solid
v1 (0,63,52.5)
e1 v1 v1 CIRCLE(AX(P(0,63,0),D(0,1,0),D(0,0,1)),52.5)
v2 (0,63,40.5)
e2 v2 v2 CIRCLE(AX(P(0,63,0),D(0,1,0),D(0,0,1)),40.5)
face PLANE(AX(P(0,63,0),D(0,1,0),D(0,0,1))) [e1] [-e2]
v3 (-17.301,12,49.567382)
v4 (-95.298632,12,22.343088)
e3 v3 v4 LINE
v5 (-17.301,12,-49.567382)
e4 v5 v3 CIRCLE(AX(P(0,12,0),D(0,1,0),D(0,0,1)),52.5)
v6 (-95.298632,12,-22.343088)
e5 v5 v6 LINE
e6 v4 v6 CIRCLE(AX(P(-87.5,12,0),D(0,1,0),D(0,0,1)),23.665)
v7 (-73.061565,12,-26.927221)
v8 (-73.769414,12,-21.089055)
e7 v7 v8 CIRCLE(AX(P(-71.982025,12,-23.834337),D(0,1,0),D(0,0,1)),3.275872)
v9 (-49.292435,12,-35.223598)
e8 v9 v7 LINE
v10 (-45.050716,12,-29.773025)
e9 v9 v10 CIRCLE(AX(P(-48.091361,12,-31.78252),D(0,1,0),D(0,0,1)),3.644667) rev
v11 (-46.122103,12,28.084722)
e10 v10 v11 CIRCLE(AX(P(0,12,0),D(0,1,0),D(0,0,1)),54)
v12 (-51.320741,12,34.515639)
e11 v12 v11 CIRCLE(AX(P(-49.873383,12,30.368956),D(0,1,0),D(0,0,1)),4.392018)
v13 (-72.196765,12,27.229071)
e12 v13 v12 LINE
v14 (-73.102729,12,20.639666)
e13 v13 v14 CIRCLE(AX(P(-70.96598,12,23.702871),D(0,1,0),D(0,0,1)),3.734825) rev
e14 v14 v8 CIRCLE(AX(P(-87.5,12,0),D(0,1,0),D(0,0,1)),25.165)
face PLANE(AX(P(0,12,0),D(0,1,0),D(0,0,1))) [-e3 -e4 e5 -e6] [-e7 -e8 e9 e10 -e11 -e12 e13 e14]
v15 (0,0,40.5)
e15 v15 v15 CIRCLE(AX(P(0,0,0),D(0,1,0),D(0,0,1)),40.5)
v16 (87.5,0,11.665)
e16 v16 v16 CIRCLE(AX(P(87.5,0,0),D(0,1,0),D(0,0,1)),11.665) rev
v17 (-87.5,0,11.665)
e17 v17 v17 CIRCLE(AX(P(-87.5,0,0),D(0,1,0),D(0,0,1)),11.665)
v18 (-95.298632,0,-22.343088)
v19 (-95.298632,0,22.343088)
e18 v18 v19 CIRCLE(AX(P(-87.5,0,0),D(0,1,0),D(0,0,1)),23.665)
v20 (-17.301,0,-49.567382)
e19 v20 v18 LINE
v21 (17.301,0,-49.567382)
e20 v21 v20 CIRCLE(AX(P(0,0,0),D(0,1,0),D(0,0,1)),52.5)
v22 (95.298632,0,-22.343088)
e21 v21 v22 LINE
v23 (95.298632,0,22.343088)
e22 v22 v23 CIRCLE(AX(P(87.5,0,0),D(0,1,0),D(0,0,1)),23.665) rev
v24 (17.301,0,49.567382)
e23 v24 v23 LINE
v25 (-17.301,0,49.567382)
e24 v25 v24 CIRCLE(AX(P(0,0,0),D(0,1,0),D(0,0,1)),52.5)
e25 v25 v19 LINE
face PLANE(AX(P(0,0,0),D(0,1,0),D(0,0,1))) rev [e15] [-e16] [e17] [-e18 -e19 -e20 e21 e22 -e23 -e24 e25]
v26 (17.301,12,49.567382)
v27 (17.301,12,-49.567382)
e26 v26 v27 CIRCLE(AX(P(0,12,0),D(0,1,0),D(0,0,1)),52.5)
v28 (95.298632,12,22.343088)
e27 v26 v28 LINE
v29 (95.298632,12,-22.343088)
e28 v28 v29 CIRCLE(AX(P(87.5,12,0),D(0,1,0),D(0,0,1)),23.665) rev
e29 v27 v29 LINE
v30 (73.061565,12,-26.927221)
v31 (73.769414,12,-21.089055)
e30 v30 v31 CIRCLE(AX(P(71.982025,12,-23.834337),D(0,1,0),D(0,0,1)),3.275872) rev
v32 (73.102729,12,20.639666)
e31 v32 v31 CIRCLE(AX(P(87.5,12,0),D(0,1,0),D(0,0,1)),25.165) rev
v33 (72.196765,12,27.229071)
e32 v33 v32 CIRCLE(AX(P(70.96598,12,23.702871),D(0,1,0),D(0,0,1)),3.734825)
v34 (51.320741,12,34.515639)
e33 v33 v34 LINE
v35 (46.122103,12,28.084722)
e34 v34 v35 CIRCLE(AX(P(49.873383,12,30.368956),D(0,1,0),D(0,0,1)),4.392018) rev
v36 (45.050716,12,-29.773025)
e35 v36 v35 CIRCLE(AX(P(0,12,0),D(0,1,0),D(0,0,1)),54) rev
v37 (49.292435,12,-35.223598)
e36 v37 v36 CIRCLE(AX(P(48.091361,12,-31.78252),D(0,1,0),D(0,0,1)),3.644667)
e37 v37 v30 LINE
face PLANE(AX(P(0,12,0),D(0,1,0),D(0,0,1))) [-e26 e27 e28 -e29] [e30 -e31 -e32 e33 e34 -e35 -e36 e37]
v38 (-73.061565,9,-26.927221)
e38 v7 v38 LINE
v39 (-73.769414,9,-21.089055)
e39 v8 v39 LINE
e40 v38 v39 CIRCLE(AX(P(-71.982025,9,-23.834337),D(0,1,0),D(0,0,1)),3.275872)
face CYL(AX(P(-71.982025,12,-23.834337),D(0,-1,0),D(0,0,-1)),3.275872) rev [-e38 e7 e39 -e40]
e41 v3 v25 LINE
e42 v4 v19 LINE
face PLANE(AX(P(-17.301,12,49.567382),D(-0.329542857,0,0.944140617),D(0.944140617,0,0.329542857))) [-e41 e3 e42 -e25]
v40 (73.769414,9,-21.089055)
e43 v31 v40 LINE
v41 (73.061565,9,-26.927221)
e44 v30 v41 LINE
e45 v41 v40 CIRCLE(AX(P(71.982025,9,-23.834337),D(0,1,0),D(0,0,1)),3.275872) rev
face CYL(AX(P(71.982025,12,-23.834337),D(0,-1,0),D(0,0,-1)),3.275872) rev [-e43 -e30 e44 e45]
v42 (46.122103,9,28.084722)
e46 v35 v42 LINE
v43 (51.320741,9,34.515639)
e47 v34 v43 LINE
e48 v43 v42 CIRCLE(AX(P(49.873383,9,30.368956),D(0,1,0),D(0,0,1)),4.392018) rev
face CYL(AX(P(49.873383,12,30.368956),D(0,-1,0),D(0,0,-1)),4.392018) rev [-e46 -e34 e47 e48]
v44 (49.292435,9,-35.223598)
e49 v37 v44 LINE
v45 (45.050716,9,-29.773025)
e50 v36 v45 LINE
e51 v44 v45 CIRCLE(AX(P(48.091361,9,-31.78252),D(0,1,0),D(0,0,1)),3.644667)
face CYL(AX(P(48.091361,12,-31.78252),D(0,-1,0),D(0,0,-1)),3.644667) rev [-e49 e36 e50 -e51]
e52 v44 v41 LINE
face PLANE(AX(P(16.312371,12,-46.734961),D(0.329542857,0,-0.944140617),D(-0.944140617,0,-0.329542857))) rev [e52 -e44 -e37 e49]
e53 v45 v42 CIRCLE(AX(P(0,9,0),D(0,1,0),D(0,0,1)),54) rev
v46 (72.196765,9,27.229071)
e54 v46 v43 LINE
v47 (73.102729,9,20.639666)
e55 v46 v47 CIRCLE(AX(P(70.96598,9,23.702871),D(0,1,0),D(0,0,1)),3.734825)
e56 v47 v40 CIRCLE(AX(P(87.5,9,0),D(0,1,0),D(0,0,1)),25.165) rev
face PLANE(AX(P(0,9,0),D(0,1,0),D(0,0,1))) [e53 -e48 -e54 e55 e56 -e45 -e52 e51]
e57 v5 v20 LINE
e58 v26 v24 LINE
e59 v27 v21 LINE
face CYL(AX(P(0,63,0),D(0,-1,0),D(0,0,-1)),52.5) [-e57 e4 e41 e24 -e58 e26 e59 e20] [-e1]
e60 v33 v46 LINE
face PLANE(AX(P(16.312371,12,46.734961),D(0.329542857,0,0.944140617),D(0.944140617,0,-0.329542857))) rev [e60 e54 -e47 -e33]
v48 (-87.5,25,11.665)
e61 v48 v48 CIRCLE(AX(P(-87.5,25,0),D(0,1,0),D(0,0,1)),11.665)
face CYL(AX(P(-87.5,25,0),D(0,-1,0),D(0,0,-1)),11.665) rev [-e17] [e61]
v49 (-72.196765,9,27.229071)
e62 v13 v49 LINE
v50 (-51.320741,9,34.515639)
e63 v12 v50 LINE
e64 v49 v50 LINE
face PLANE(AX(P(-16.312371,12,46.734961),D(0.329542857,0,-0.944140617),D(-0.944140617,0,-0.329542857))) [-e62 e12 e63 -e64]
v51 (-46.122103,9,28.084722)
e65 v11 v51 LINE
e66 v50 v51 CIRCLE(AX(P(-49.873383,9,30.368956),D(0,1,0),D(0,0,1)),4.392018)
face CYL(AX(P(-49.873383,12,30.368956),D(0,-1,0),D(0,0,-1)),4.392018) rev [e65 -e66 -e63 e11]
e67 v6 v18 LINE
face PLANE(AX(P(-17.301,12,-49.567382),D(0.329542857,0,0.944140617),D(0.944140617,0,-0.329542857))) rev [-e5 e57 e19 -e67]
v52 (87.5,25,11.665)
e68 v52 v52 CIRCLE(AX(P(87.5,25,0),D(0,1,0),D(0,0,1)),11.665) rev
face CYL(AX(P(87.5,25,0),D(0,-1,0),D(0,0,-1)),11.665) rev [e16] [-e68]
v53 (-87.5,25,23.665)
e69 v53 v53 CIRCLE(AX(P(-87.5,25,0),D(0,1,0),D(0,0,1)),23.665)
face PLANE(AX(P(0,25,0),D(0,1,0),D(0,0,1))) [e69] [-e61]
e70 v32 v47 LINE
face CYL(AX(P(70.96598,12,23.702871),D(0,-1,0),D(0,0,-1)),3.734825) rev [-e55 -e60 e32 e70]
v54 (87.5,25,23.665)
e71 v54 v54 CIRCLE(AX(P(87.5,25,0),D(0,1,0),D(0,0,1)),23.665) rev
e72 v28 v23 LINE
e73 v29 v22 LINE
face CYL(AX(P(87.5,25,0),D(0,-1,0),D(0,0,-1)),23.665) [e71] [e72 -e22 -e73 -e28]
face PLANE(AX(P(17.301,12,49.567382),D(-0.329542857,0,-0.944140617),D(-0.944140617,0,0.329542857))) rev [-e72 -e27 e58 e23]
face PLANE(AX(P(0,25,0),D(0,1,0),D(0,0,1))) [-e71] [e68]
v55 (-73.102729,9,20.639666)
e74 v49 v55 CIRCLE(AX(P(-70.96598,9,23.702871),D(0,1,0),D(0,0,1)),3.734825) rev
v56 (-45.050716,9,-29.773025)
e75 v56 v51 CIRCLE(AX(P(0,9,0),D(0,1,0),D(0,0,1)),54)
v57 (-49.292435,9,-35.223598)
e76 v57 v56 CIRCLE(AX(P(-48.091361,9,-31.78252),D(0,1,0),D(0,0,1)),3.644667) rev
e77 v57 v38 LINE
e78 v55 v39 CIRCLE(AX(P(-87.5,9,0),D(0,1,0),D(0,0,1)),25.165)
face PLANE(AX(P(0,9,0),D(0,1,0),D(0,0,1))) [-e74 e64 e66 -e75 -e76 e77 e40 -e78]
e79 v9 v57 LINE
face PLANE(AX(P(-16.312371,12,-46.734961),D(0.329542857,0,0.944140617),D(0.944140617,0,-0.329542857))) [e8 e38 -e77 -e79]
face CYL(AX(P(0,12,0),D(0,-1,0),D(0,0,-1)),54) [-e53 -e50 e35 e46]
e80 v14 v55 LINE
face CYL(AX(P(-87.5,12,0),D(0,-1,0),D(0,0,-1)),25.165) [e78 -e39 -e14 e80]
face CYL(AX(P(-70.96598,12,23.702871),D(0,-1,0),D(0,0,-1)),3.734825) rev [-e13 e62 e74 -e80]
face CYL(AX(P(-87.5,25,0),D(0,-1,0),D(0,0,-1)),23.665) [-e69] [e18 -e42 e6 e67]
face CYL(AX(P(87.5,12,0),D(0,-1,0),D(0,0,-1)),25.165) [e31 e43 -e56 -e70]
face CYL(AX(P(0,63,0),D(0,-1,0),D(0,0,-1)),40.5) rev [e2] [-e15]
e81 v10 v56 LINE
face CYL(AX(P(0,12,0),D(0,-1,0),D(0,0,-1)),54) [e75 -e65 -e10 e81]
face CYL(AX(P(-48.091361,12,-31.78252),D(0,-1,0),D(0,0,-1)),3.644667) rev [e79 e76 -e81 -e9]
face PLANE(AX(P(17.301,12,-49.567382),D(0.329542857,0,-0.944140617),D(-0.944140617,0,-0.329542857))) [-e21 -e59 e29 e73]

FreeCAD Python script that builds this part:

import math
import FreeCAD as App
import Part
import Sketcher
Q = App.Units.Quantity

doc = App.newDocument("Part")
body = doc.addObject("PartDesign::Body", "Body")

sketch1 = body.newObject("Sketcher::SketchObject", "Sketch")
sketch1.AttachmentSupport = (doc.getObject("XZ_Plane"), [""])
sketch1.MapMode = "FlatFace"
sketch1.addGeometry([
    Part.LineSegment(App.Vector(95.3, -22.3, 0), App.Vector(17.3, -49.6, 0)),
    Part.ArcOfCircle(Part.Circle(App.Vector(0, 0, 0), App.Vector(0, 0, 1), 52.5), math.radians(-71), math.radians(0)),
    Part.ArcOfCircle(Part.Circle(App.Vector(0, 0, 0), App.Vector(0, 0, 1), 52.5), math.radians(0), math.radians(71)),
    Part.LineSegment(App.Vector(17.3, 49.6, 0), App.Vector(95.3, 22.3, 0)),
    Part.ArcOfCircle(Part.Circle(App.Vector(87.5, 0, 0), App.Vector(0, 0, 1), 23.7), math.radians(71), math.radians(289)),
    Part.ArcOfCircle(Part.Circle(App.Vector(87.5, 0, 0), App.Vector(0, 0, 1), 25.2), math.radians(125), math.radians(237)),
    Part.ArcOfCircle(Part.Circle(App.Vector(71, 23.7, 0), App.Vector(0, 0, 1), 3.7), math.radians(-55), math.radians(71)),
    Part.LineSegment(App.Vector(72.2, 27.2, 0), App.Vector(51.3, 34.5, 0)),
    Part.ArcOfCircle(Part.Circle(App.Vector(49.9, 30.4, 0), App.Vector(0, 0, 1), 4.4), math.radians(71), math.radians(211)),
    Part.ArcOfCircle(Part.Circle(App.Vector(0, 0, 0), App.Vector(0, 0, 1), 54), math.radians(-33), math.radians(31)),
    Part.ArcOfCircle(Part.Circle(App.Vector(48.1, -31.8, 0), App.Vector(0, 0, 1), 3.6), math.radians(147), math.radians(289)),
    Part.LineSegment(App.Vector(49.3, -35.2, 0), App.Vector(73.1, -26.9, 0)),
    Part.ArcOfCircle(Part.Circle(App.Vector(72, -23.8, 0), App.Vector(0, 0, 1), 3.3), math.radians(-71), math.radians(57)),
], False)
sketch1.addConstraint([
    Sketcher.Constraint("Tangent", 0, 2, 1, 1),
    Sketcher.Constraint("Tangent", 1, 2, 2, 1),
    Sketcher.Constraint("Tangent", 2, 2, 3, 1),
    Sketcher.Constraint("Tangent", 3, 2, 4, 1),
    Sketcher.Constraint("Tangent", 4, 2, 0, 1),
    Sketcher.Constraint("Tangent", 5, 1, 6, 1),
    Sketcher.Constraint("Tangent", 6, 2, 7, 1),
    Sketcher.Constraint("Tangent", 7, 2, 8, 1),
    Sketcher.Constraint("Tangent", 8, 2, 9, 2),
    Sketcher.Constraint("Tangent", 9, 1, 10, 1),
    Sketcher.Constraint("Tangent", 10, 2, 11, 1),
    Sketcher.Constraint("Tangent", 11, 2, 12, 1),
    Sketcher.Constraint("Tangent", 12, 2, 5, 2),
    Sketcher.Constraint("Coincident", 1, 3, -1, 1),
    Sketcher.Constraint("Coincident", 9, 3, -1, 1),
    Sketcher.Constraint("Coincident", 5, 3, 4, 3),
    Sketcher.Constraint("Equal", 1, 2),
    Sketcher.Constraint("PointOnObject", 4, 3, -1),
    Sketcher.Constraint("PointOnObject", 1, 2, -1),
    Sketcher.Constraint("Parallel", 3, 7),
    Sketcher.Constraint("Parallel", 0, 11),
    Sketcher.Constraint("Radius", 9, Q("54 mm")),
    Sketcher.Constraint("Radius", 1, Q("52.5 mm")),
    Sketcher.Constraint("Radius", 4, Q("23.665 mm")),
    Sketcher.Constraint("Radius", 5, Q("25.165 mm")),
    Sketcher.Constraint("DistanceX", 1, 2, 5, 3, Q("35 mm")),
    Sketcher.Constraint("Radius", 8, Q("4.392018 mm")),
    Sketcher.Constraint("Radius", 12, Q("3.275872 mm")),
    Sketcher.Constraint("Radius", 6, Q("3.734825 mm")),
    Sketcher.Constraint("Radius", 10, Q("3.644667 mm")),
    Sketcher.Constraint("DistanceY", 10, 2, -1, 1, Q("35.223598 mm")),
    Sketcher.Constraint("Distance", 7, Q("22.111138 mm")),
])
pad1 = body.newObject("PartDesign::Pad", "Pad")
pad1.Profile = sketch1
pad1.Length = 12
pad1.Reversed = True
body2 = doc.addObject("PartDesign::Body", "Body001")

sketch2 = body2.newObject("Sketcher::SketchObject", "Sketch001")
sketch2.AttachmentSupport = (doc.getObject("XZ_Plane001"), [""])
sketch2.MapMode = "FlatFace"
sketch2.addGeometry([
    Part.ArcOfCircle(Part.Circle(App.Vector(0, 0, 0), App.Vector(0, 0, 1), 52.5), math.radians(109), math.radians(251)),
    Part.LineSegment(App.Vector(-17.3, -49.6, 0), App.Vector(-95.3, -22.3, 0)),
    Part.ArcOfCircle(Part.Circle(App.Vector(-87.5, 0, 0), App.Vector(0, 0, 1), 23.7), math.radians(-109), math.radians(0)),
    Part.ArcOfCircle(Part.Circle(App.Vector(-87.5, 0, 0), App.Vector(0, 0, 1), 23.7), math.radians(0), math.radians(109)),
    Part.LineSegment(App.Vector(-95.3, 22.3, 0), App.Vector(-17.3, 49.6, 0)),
    Part.ArcOfCircle(Part.Circle(App.Vector(-72, -23.8, 0), App.Vector(0, 0, 1), 3.3), math.radians(123), math.radians(251)),
    Part.LineSegment(App.Vector(-73.1, -26.9, 0), App.Vector(-49.3, -35.2, 0)),
    Part.ArcOfCircle(Part.Circle(App.Vector(-48.1, -31.8, 0), App.Vector(0, 0, 1), 3.6), math.radians(-109), math.radians(33)),
    Part.ArcOfCircle(Part.Circle(App.Vector(0, 0, 0), App.Vector(0, 0, 1), 54), math.radians(149), math.radians(213)),
    Part.ArcOfCircle(Part.Circle(App.Vector(-49.9, 30.4, 0), App.Vector(0, 0, 1), 4.4), math.radians(-31), math.radians(109)),
    Part.LineSegment(App.Vector(-51.3, 34.5, 0), App.Vector(-72.2, 27.2, 0)),
    Part.ArcOfCircle(Part.Circle(App.Vector(-71, 23.7, 0), App.Vector(0, 0, 1), 3.7), math.radians(109), math.radians(235)),
    Part.ArcOfCircle(Part.Circle(App.Vector(-87.5, 0, 0), App.Vector(0, 0, 1), 25.2), math.radians(-57), math.radians(55)),
], False)
sketch2.addConstraint([
    Sketcher.Constraint("Tangent", 0, 2, 1, 1),
    Sketcher.Constraint("Tangent", 1, 2, 2, 1),
    Sketcher.Constraint("Tangent", 2, 2, 3, 1),
    Sketcher.Constraint("Tangent", 3, 2, 4, 1),
    Sketcher.Constraint("Tangent", 4, 2, 0, 1),
    Sketcher.Constraint("Tangent", 5, 2, 6, 1),
    Sketcher.Constraint("Tangent", 6, 2, 7, 1),
    Sketcher.Constraint("Tangent", 7, 2, 8, 2),
    Sketcher.Constraint("Tangent", 8, 1, 9, 1),
    Sketcher.Constraint("Tangent", 9, 2, 10, 1),
    Sketcher.Constraint("Tangent", 10, 2, 11, 1),
    Sketcher.Constraint("Tangent", 11, 2, 12, 2),
    Sketcher.Constraint("Tangent", 12, 1, 5, 1),
    Sketcher.Constraint("Coincident", 0, 3, -1, 1),
    Sketcher.Constraint("Coincident", 8, 3, -1, 1),
    Sketcher.Constraint("Coincident", 12, 3, 2, 3),
    Sketcher.Constraint("Equal", 2, 3),
    Sketcher.Constraint("PointOnObject", 2, 3, -1),
    Sketcher.Constraint("PointOnObject", 2, 2, -1),
    Sketcher.Constraint("Parallel", 1, 6),
    Sketcher.Constraint("Parallel", 4, 10),
    Sketcher.Constraint("Radius", 8, Q("54 mm")),
    Sketcher.Constraint("Radius", 0, Q("52.5 mm")),
    Sketcher.Constraint("Radius", 2, Q("23.665 mm")),
    Sketcher.Constraint("Radius", 12, Q("25.165 mm")),
    Sketcher.Constraint("DistanceX", 2, 3, -1, 1, Q("87.5 mm")),
    Sketcher.Constraint("Radius", 5, Q("3.275872 mm")),
    Sketcher.Constraint("Radius", 9, Q("4.392018 mm")),
    Sketcher.Constraint("Radius", 7, Q("3.644667 mm")),
    Sketcher.Constraint("Radius", 11, Q("3.734825 mm")),
    Sketcher.Constraint("DistanceY", 6, 2, -1, 1, Q("35.223598 mm")),
    Sketcher.Constraint("Distance", 10, Q("22.111138 mm")),
])
pad2 = body2.newObject("PartDesign::Pad", "Pad001")
pad2.Profile = sketch2
pad2.Length = 12
pad2.Reversed = True
body.AllowCompound = True
doc.recompute()

boolean = body.newObject("PartDesign::Boolean", "Boolean")
boolean.Type = "Fuse"
boolean.addObjects([body2])

sketch3 = body.newObject("Sketcher::SketchObject", "Sketch002")
sketch3.AttachmentSupport = (doc.getObject("XZ_Plane"), [""])
sketch3.MapMode = "FlatFace"
sketch3.addGeometry([
    Part.ArcOfCircle(Part.Circle(App.Vector(48.1, -31.8, 0), App.Vector(0, 0, 1), 3.6), math.radians(147), math.radians(289)),
    Part.ArcOfCircle(Part.Circle(App.Vector(0, 0, 0), App.Vector(0, 0, 1), 54), math.radians(-33), math.radians(31)),
    Part.ArcOfCircle(Part.Circle(App.Vector(49.9, 30.4, 0), App.Vector(0, 0, 1), 4.4), math.radians(71), math.radians(211)),
    Part.LineSegment(App.Vector(51.3, 34.5, 0), App.Vector(72.2, 27.2, 0)),
    Part.ArcOfCircle(Part.Circle(App.Vector(71, 23.7, 0), App.Vector(0, 0, 1), 3.7), math.radians(-55), math.radians(71)),
    Part.ArcOfCircle(Part.Circle(App.Vector(87.5, 0, 0), App.Vector(0, 0, 1), 25.2), math.radians(125), math.radians(237)),
    Part.ArcOfCircle(Part.Circle(App.Vector(72, -23.8, 0), App.Vector(0, 0, 1), 3.3), math.radians(-71), math.radians(57)),
    Part.LineSegment(App.Vector(73.1, -26.9, 0), App.Vector(49.3, -35.2, 0)),
    Part.LineSegment(App.Vector(-72.2, 27.2, 0), App.Vector(-51.3, 34.5, 0)),
    Part.ArcOfCircle(Part.Circle(App.Vector(-49.9, 30.4, 0), App.Vector(0, 0, 1), 4.4), math.radians(-31), math.radians(109)),
    Part.ArcOfCircle(Part.Circle(App.Vector(0, 0, 0), App.Vector(0, 0, 1), 54), math.radians(149), math.radians(213)),
    Part.ArcOfCircle(Part.Circle(App.Vector(-48.1, -31.8, 0), App.Vector(0, 0, 1), 3.6), math.radians(-109), math.radians(33)),
    Part.LineSegment(App.Vector(-49.3, -35.2, 0), App.Vector(-73.1, -26.9, 0)),
    Part.ArcOfCircle(Part.Circle(App.Vector(-72, -23.8, 0), App.Vector(0, 0, 1), 3.3), math.radians(123), math.radians(251)),
    Part.ArcOfCircle(Part.Circle(App.Vector(-87.5, 0, 0), App.Vector(0, 0, 1), 25.2), math.radians(-57), math.radians(55)),
    Part.ArcOfCircle(Part.Circle(App.Vector(-71, 23.7, 0), App.Vector(0, 0, 1), 3.7), math.radians(109), math.radians(235)),
], False)
sketch3.addConstraint([
    Sketcher.Constraint("Tangent", 0, 1, 1, 1),
    Sketcher.Constraint("Tangent", 1, 2, 2, 2),
    Sketcher.Constraint("Tangent", 2, 1, 3, 1),
    Sketcher.Constraint("Tangent", 3, 2, 4, 2),
    Sketcher.Constraint("Tangent", 4, 1, 5, 1),
    Sketcher.Constraint("Tangent", 5, 2, 6, 2),
    Sketcher.Constraint("Tangent", 6, 1, 7, 1),
    Sketcher.Constraint("Tangent", 7, 2, 0, 2),
    Sketcher.Constraint("Tangent", 8, 2, 9, 2),
    Sketcher.Constraint("Tangent", 9, 1, 10, 1),
    Sketcher.Constraint("Tangent", 10, 2, 11, 2),
    Sketcher.Constraint("Tangent", 11, 1, 12, 1),
    Sketcher.Constraint("Tangent", 12, 2, 13, 2),
    Sketcher.Constraint("Tangent", 13, 1, 14, 1),
    Sketcher.Constraint("Tangent", 14, 2, 15, 2),
    Sketcher.Constraint("Tangent", 15, 1, 8, 1),
    Sketcher.Constraint("Coincident", 1, 3, -1, 1),
    Sketcher.Constraint("Coincident", 10, 3, -1, 1),
    Sketcher.Constraint("Equal", 2, 9),
    Sketcher.Constraint("Equal", 1, 10),
    Sketcher.Constraint("Equal", 0, 11),
    Sketcher.Constraint("Equal", 6, 13),
    Sketcher.Constraint("Equal", 5, 14),
    Sketcher.Constraint("Equal", 4, 15),
    Sketcher.Constraint("Symmetric", 5, 3, 14, 3, -1, 1),
    Sketcher.Constraint("Symmetric", 6, 3, 13, 3, -2),
    Sketcher.Constraint("Symmetric", 2, 1, 8, 2, -2),
    Sketcher.Constraint("Parallel", 7, 8),
    Sketcher.Constraint("Parallel", 3, 12),
    Sketcher.Constraint("Radius", 1, Q("54 mm")),
    Sketcher.Constraint("Radius", 5, Q("25.165 mm")),
    Sketcher.Constraint("DistanceX", -1, 1, 5, 3, Q("87.5 mm")),
    Sketcher.Constraint("Radius", 2, Q("4.392018 mm")),
    Sketcher.Constraint("Radius", 6, Q("3.275872 mm")),
    Sketcher.Constraint("Radius", 0, Q("3.644667 mm")),
    Sketcher.Constraint("Radius", 4, Q("3.734825 mm")),
    Sketcher.Constraint("DistanceY", 7, 2, -1, 1, Q("35.223598 mm")),
    Sketcher.Constraint("DistanceY", 4, 3, 3, 2, Q("3.5262 mm")),
    Sketcher.Constraint("Distance", 3, Q("22.111138 mm")),
])
pad3 = body.newObject("PartDesign::Pad", "Pad002")
pad3.Profile = sketch3
pad3.Length = 9
pad3.Reversed = True

sketch4 = body.newObject("Sketcher::SketchObject", "Sketch003")
sketch4.AttachmentSupport = (doc.getObject("XZ_Plane"), [""])
sketch4.MapMode = "FlatFace"
sketch4.addGeometry([
    Part.Circle(App.Vector(0, 0, 0), App.Vector(0, 0, 1), 52),
    Part.Circle(App.Vector(0, 0, 0), App.Vector(0, 0, 1), 40),
], False)
sketch4.addConstraint([
    Sketcher.Constraint("Coincident", 0, 3, -1, 1),
    Sketcher.Constraint("Coincident", 1, 3, -1, 1),
    Sketcher.Constraint("Diameter", 0, Q("105 mm")),
    Sketcher.Constraint("Diameter", 1, Q("81 mm")),
])
pad4 = body.newObject("PartDesign::Pad", "Pad003")
pad4.Profile = sketch4
pad4.Length = 63
pad4.Reversed = True

sketch5 = body.newObject("Sketcher::SketchObject", "Sketch004")
sketch5.AttachmentSupport = (doc.getObject("XZ_Plane"), [""])
sketch5.MapMode = "FlatFace"
sketch5.addGeometry([
    Part.Circle(App.Vector(-88, 0, 0), App.Vector(0, 0, 1), 24),
    Part.Circle(App.Vector(-88, 0, 0), App.Vector(0, 0, 1), 12),
    Part.Circle(App.Vector(88, 0, 0), App.Vector(0, 0, 1), 24),
    Part.Circle(App.Vector(88, 0, 0), App.Vector(0, 0, 1), 12),
], False)
sketch5.addConstraint([
    Sketcher.Constraint("Coincident", 1, 3, 0, 3),
    Sketcher.Constraint("Coincident", 3, 3, 2, 3),
    Sketcher.Constraint("Equal", 0, 2),
    Sketcher.Constraint("Equal", 1, 3),
    Sketcher.Constraint("Symmetric", 0, 3, 2, 3, -1, 1),
    Sketcher.Constraint("PointOnObject", 0, 3, -1),
    Sketcher.Constraint("Diameter", 0, Q("47.33 mm")),
    Sketcher.Constraint("Diameter", 1, Q("23.33 mm")),
    Sketcher.Constraint("DistanceX", 0, 3, 2, 3, Q("175 mm")),
])
pad5 = body.newObject("PartDesign::Pad", "Pad004")
pad5.Profile = sketch5
pad5.Length = 25
pad5.Reversed = True

doc.recompute()
